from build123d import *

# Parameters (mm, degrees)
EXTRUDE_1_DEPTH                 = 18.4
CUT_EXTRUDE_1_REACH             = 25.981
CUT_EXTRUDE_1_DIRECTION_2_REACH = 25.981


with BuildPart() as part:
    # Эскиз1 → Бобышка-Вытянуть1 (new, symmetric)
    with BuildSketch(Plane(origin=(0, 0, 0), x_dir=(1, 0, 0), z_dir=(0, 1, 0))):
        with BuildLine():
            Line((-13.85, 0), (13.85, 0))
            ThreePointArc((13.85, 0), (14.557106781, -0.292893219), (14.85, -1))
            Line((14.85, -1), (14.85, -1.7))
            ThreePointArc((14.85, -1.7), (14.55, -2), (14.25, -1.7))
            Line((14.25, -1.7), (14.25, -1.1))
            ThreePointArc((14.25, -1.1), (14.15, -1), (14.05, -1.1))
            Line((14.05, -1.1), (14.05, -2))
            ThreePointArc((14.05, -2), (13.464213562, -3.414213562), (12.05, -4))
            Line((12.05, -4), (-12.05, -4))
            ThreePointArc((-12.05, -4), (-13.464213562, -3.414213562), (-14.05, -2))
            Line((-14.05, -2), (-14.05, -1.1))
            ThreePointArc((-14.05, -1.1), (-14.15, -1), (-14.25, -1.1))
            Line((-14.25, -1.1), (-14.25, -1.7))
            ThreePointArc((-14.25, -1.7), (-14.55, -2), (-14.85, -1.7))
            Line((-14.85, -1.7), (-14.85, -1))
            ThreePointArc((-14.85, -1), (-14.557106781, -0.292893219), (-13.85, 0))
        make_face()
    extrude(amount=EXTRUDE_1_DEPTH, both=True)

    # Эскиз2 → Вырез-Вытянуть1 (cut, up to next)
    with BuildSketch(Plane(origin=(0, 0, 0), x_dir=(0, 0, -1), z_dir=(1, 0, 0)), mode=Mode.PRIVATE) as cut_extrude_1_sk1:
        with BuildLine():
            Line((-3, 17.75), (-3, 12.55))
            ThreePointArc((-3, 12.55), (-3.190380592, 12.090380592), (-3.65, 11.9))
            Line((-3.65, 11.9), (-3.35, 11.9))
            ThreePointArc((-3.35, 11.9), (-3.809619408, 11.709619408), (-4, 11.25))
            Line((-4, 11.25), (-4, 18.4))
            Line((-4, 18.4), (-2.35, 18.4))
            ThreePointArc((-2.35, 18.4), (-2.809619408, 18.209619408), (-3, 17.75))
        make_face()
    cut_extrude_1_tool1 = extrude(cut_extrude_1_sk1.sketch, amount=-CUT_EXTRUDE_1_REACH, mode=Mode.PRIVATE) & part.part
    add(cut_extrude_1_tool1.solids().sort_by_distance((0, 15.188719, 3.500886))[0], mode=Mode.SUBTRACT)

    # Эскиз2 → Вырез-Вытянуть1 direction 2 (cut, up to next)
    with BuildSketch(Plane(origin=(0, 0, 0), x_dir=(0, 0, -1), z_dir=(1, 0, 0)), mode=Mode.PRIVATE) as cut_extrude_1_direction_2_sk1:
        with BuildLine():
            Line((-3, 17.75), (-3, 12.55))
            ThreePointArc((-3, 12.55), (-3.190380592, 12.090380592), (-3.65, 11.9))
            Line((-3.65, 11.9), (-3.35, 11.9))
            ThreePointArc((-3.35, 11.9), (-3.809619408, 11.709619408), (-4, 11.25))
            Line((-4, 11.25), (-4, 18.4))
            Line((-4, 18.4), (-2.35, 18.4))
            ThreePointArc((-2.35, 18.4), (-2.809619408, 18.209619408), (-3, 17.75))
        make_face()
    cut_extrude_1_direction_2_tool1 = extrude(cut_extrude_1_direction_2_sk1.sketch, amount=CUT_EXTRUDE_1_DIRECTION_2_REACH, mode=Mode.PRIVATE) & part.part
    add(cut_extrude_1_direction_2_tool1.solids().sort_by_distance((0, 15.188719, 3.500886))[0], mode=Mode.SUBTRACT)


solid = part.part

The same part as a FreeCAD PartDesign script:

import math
import FreeCAD as App
import Part
import Sketcher

V = App.Vector

doc = App.newDocument("Part")
body = doc.addObject("PartDesign::Body", "Body")

sketch1 = body.newObject("Sketcher::SketchObject", "Sketch")
sketch1.AttachmentSupport = (doc.getObject("XZ_Plane"), [""])
sketch1.MapMode = "FlatFace"
sketch1.addGeometry([
    Part.LineSegment(V(13.85, 0, 0), V(-13.85, 0, 0)),
    Part.ArcOfCircle(Part.Circle(V(-13.85, 1, 0), V(0, 0, 1), 1), math.radians(-180), math.radians(-90)),
    Part.LineSegment(V(-14.85, 1, 0), V(-14.85, 1.7, 0)),
    Part.ArcOfCircle(Part.Circle(V(-14.55, 1.7, 0), V(0, 0, 1), 0.3), math.radians(0), math.radians(180)),
    Part.LineSegment(V(-14.25, 1.7, 0), V(-14.25, 1.1, 0)),
    Part.ArcOfCircle(Part.Circle(V(-14.15, 1.1, 0), V(0, 0, 1), 0.1), math.radians(180), math.radians(360)),
    Part.LineSegment(V(-14.05, 1.1, 0), V(-14.05, 2, 0)),
    Part.ArcOfCircle(Part.Circle(V(-12.05, 2, 0), V(0, 0, 1), 2), math.radians(90), math.radians(180)),
    Part.LineSegment(V(-12.05, 4, 0), V(12.05, 4, 0)),
    Part.ArcOfCircle(Part.Circle(V(12.05, 2, 0), V(0, 0, 1), 2), math.radians(0), math.radians(90)),
    Part.LineSegment(V(14.05, 2, 0), V(14.05, 1.1, 0)),
    Part.ArcOfCircle(Part.Circle(V(14.15, 1.1, 0), V(0, 0, 1), 0.1), math.radians(180), math.radians(360)),
    Part.LineSegment(V(14.25, 1.1, 0), V(14.25, 1.7, 0)),
    Part.ArcOfCircle(Part.Circle(V(14.55, 1.7, 0), V(0, 0, 1), 0.3), math.radians(0), math.radians(180)),
    Part.LineSegment(V(14.85, 1.7, 0), V(14.85, 1, 0)),
    Part.ArcOfCircle(Part.Circle(V(13.85, 1, 0), V(0, 0, 1), 1), math.radians(-90), math.radians(0)),
], False)
sketch1.addConstraint([
    Sketcher.Constraint("Tangent", 0, 2, 1, 2),
    Sketcher.Constraint("Tangent", 1, 1, 2, 1),
    Sketcher.Constraint("Tangent", 2, 2, 3, 2),
    Sketcher.Constraint("Tangent", 3, 1, 4, 1),
    Sketcher.Constraint("Tangent", 4, 2, 5, 1),
    Sketcher.Constraint("Tangent", 5, 2, 6, 1),
    Sketcher.Constraint("Tangent", 6, 2, 7, 2),
    Sketcher.Constraint("Tangent", 7, 1, 8, 1),
    Sketcher.Constraint("Tangent", 8, 2, 9, 2),
    Sketcher.Constraint("Tangent", 9, 1, 10, 1),
    Sketcher.Constraint("Tangent", 10, 2, 11, 1),
    Sketcher.Constraint("Tangent", 11, 2, 12, 1),
    Sketcher.Constraint("Tangent", 12, 2, 13, 2),
    Sketcher.Constraint("Tangent", 13, 1, 14, 1),
    Sketcher.Constraint("Tangent", 14, 2, 15, 2),
    Sketcher.Constraint("Tangent", 15, 1, 0, 1),
    Sketcher.Constraint("Horizontal", 0),
    Sketcher.Constraint("Vertical", 2),
    Sketcher.Constraint("Vertical", 4),
    Sketcher.Constraint("Vertical", 6),
    Sketcher.Constraint("Horizontal", 8),
    Sketcher.Constraint("Vertical", 10),
    Sketcher.Constraint("Vertical", 12),
    Sketcher.Constraint("Vertical", 14),
    Sketcher.Constraint("Equal", 7, 9),
    Sketcher.Constraint("Equal", 5, 11),
    Sketcher.Constraint("Equal", 3, 13),
    Sketcher.Constraint("Equal", 1, 15),
    Sketcher.Constraint("Symmetric", 0, 2, 15, 1, -1, 1),
    Sketcher.Constraint("Horizontal", 5, 3, 11, 3),
    Sketcher.Constraint("Horizontal", 3, 3, 13, 3),
    Sketcher.Constraint("Radius", 1, 1.0),
    Sketcher.Constraint("Radius", 7, 2.0),
    Sketcher.Constraint("Radius", 3, 0.3),
    Sketcher.Constraint("Radius", 5, 0.1),
    Sketcher.Constraint("DistanceX", 0, 2, 0, 1, 27.7),
    Sketcher.Constraint("DistanceY", 2, 1, 2, 2, 0.7),
    Sketcher.Constraint("DistanceY", 4, 2, 4, 1, 0.6),
    Sketcher.Constraint("DistanceY", 6, 1, 6, 2, 0.9),
])
pad1 = body.newObject("PartDesign::Pad", "Pad")
pad1.Profile = sketch1
pad1.Length = 36.8
pad1.Midplane = True

sketch2 = body.newObject("Sketcher::SketchObject", "Sketch001")
sketch2.AttachmentSupport = (doc.getObject("YZ_Plane"), [""])
sketch2.MapMode = "FlatFace"
sketch2.addGeometry([
    Part.LineSegment(V(12.55, 3, 0), V(17.75, 3, 0)),
    Part.ArcOfCircle(Part.Circle(V(17.75, 2.35, 0), V(0, 0, 1), 0.65), math.radians(0), math.radians(90)),
    Part.LineSegment(V(18.4, 2.35, 0), V(18.4, 4, 0)),
    Part.LineSegment(V(18.4, 4, 0), V(11.25, 4, 0)),
    Part.ArcOfCircle(Part.Circle(V(11.25, 3.35, 0), V(0, 0, 1), 0.65), math.radians(0), math.radians(90)),
    Part.LineSegment(V(11.9, 3.35, 0), V(11.9, 3.65, 0)),
    Part.ArcOfCircle(Part.Circle(V(12.55, 3.65, 0), V(0, 0, 1), 0.65), math.radians(180), math.radians(270)),
], False)
sketch2.addConstraint([
    Sketcher.Constraint("Tangent", 0, 2, 1, 2),
    Sketcher.Constraint("Tangent", 1, 1, 2, 1),
    Sketcher.Constraint("Coincident", 2, 2, 3, 1),
    Sketcher.Constraint("Tangent", 3, 2, 4, 2),
    Sketcher.Constraint("Tangent", 4, 1, 5, 1),
    Sketcher.Constraint("Tangent", 5, 2, 6, 1),
    Sketcher.Constraint("Tangent", 6, 2, 0, 1),
    Sketcher.Constraint("Horizontal", 0),
    Sketcher.Constraint("Vertical", 2),
    Sketcher.Constraint("Horizontal", 3),
    Sketcher.Constraint("Vertical", 5),
    Sketcher.Constraint("Equal", 1, 4),
    Sketcher.Constraint("Equal", 4, 6),
    Sketcher.Constraint("Radius", 1, 0.65),
    Sketcher.Constraint("DistanceX", 0, 1, 0, 2, 5.2),
    Sketcher.Constraint("DistanceY", 5, 1, 5, 2, 0.3),
    Sketcher.Constraint("DistanceY", -1, 1, 0, 2, 3.0),
    Sketcher.Constraint("DistanceX", -1, 1, 1, 1, 18.4),
])
pocket1 = body.newObject("PartDesign::Pocket", "Pocket")
pocket1.Profile = sketch2
pocket1.Type = "UpToFirst"

sketch3 = body.newObject("Sketcher::SketchObject", "Sketch002")
sketch3.AttachmentSupport = (doc.getObject("YZ_Plane"), [""])
sketch3.MapMode = "FlatFace"
sketch3.addGeometry([
    Part.LineSegment(V(12.55, 3, 0), V(17.75, 3, 0)),
    Part.ArcOfCircle(Part.Circle(V(17.75, 2.35, 0), V(0, 0, 1), 0.65), math.radians(0), math.radians(90)),
    Part.LineSegment(V(18.4, 2.35, 0), V(18.4, 4, 0)),
    Part.LineSegment(V(18.4, 4, 0), V(11.25, 4, 0)),
    Part.ArcOfCircle(Part.Circle(V(11.25, 3.35, 0), V(0, 0, 1), 0.65), math.radians(0), math.radians(90)),
    Part.LineSegment(V(11.9, 3.35, 0), V(11.9, 3.65, 0)),
    Part.ArcOfCircle(Part.Circle(V(12.55, 3.65, 0), V(0, 0, 1), 0.65), math.radians(180), math.radians(270)),
], False)
sketch3.addConstraint([
    Sketcher.Constraint("Tangent", 0, 2, 1, 2),
    Sketcher.Constraint("Tangent", 1, 1, 2, 1),
    Sketcher.Constraint("Coincident", 2, 2, 3, 1),
    Sketcher.Constraint("Tangent", 3, 2, 4, 2),
    Sketcher.Constraint("Tangent", 4, 1, 5, 1),
    Sketcher.Constraint("Tangent", 5, 2, 6, 1),
    Sketcher.Constraint("Tangent", 6, 2, 0, 1),
    Sketcher.Constraint("Horizontal", 0),
    Sketcher.Constraint("Vertical", 2),
    Sketcher.Constraint("Horizontal", 3),
    Sketcher.Constraint("Vertical", 5),
    Sketcher.Constraint("Equal", 1, 4),
    Sketcher.Constraint("Equal", 4, 6),
    Sketcher.Constraint("Radius", 1, 0.65),
    Sketcher.Constraint("DistanceX", 0, 1, 0, 2, 5.2),
    Sketcher.Constraint("DistanceY", 5, 1, 5, 2, 0.3),
    Sketcher.Constraint("DistanceY", -1, 1, 0, 2, 3.0),
    Sketcher.Constraint("DistanceX", -1, 1, 1, 1, 18.4),
])
pocket2 = body.newObject("PartDesign::Pocket", "Pocket001")
pocket2.Profile = sketch3
pocket2.Type = "UpToFirst"
pocket2.Reversed = True

doc.recompute()
